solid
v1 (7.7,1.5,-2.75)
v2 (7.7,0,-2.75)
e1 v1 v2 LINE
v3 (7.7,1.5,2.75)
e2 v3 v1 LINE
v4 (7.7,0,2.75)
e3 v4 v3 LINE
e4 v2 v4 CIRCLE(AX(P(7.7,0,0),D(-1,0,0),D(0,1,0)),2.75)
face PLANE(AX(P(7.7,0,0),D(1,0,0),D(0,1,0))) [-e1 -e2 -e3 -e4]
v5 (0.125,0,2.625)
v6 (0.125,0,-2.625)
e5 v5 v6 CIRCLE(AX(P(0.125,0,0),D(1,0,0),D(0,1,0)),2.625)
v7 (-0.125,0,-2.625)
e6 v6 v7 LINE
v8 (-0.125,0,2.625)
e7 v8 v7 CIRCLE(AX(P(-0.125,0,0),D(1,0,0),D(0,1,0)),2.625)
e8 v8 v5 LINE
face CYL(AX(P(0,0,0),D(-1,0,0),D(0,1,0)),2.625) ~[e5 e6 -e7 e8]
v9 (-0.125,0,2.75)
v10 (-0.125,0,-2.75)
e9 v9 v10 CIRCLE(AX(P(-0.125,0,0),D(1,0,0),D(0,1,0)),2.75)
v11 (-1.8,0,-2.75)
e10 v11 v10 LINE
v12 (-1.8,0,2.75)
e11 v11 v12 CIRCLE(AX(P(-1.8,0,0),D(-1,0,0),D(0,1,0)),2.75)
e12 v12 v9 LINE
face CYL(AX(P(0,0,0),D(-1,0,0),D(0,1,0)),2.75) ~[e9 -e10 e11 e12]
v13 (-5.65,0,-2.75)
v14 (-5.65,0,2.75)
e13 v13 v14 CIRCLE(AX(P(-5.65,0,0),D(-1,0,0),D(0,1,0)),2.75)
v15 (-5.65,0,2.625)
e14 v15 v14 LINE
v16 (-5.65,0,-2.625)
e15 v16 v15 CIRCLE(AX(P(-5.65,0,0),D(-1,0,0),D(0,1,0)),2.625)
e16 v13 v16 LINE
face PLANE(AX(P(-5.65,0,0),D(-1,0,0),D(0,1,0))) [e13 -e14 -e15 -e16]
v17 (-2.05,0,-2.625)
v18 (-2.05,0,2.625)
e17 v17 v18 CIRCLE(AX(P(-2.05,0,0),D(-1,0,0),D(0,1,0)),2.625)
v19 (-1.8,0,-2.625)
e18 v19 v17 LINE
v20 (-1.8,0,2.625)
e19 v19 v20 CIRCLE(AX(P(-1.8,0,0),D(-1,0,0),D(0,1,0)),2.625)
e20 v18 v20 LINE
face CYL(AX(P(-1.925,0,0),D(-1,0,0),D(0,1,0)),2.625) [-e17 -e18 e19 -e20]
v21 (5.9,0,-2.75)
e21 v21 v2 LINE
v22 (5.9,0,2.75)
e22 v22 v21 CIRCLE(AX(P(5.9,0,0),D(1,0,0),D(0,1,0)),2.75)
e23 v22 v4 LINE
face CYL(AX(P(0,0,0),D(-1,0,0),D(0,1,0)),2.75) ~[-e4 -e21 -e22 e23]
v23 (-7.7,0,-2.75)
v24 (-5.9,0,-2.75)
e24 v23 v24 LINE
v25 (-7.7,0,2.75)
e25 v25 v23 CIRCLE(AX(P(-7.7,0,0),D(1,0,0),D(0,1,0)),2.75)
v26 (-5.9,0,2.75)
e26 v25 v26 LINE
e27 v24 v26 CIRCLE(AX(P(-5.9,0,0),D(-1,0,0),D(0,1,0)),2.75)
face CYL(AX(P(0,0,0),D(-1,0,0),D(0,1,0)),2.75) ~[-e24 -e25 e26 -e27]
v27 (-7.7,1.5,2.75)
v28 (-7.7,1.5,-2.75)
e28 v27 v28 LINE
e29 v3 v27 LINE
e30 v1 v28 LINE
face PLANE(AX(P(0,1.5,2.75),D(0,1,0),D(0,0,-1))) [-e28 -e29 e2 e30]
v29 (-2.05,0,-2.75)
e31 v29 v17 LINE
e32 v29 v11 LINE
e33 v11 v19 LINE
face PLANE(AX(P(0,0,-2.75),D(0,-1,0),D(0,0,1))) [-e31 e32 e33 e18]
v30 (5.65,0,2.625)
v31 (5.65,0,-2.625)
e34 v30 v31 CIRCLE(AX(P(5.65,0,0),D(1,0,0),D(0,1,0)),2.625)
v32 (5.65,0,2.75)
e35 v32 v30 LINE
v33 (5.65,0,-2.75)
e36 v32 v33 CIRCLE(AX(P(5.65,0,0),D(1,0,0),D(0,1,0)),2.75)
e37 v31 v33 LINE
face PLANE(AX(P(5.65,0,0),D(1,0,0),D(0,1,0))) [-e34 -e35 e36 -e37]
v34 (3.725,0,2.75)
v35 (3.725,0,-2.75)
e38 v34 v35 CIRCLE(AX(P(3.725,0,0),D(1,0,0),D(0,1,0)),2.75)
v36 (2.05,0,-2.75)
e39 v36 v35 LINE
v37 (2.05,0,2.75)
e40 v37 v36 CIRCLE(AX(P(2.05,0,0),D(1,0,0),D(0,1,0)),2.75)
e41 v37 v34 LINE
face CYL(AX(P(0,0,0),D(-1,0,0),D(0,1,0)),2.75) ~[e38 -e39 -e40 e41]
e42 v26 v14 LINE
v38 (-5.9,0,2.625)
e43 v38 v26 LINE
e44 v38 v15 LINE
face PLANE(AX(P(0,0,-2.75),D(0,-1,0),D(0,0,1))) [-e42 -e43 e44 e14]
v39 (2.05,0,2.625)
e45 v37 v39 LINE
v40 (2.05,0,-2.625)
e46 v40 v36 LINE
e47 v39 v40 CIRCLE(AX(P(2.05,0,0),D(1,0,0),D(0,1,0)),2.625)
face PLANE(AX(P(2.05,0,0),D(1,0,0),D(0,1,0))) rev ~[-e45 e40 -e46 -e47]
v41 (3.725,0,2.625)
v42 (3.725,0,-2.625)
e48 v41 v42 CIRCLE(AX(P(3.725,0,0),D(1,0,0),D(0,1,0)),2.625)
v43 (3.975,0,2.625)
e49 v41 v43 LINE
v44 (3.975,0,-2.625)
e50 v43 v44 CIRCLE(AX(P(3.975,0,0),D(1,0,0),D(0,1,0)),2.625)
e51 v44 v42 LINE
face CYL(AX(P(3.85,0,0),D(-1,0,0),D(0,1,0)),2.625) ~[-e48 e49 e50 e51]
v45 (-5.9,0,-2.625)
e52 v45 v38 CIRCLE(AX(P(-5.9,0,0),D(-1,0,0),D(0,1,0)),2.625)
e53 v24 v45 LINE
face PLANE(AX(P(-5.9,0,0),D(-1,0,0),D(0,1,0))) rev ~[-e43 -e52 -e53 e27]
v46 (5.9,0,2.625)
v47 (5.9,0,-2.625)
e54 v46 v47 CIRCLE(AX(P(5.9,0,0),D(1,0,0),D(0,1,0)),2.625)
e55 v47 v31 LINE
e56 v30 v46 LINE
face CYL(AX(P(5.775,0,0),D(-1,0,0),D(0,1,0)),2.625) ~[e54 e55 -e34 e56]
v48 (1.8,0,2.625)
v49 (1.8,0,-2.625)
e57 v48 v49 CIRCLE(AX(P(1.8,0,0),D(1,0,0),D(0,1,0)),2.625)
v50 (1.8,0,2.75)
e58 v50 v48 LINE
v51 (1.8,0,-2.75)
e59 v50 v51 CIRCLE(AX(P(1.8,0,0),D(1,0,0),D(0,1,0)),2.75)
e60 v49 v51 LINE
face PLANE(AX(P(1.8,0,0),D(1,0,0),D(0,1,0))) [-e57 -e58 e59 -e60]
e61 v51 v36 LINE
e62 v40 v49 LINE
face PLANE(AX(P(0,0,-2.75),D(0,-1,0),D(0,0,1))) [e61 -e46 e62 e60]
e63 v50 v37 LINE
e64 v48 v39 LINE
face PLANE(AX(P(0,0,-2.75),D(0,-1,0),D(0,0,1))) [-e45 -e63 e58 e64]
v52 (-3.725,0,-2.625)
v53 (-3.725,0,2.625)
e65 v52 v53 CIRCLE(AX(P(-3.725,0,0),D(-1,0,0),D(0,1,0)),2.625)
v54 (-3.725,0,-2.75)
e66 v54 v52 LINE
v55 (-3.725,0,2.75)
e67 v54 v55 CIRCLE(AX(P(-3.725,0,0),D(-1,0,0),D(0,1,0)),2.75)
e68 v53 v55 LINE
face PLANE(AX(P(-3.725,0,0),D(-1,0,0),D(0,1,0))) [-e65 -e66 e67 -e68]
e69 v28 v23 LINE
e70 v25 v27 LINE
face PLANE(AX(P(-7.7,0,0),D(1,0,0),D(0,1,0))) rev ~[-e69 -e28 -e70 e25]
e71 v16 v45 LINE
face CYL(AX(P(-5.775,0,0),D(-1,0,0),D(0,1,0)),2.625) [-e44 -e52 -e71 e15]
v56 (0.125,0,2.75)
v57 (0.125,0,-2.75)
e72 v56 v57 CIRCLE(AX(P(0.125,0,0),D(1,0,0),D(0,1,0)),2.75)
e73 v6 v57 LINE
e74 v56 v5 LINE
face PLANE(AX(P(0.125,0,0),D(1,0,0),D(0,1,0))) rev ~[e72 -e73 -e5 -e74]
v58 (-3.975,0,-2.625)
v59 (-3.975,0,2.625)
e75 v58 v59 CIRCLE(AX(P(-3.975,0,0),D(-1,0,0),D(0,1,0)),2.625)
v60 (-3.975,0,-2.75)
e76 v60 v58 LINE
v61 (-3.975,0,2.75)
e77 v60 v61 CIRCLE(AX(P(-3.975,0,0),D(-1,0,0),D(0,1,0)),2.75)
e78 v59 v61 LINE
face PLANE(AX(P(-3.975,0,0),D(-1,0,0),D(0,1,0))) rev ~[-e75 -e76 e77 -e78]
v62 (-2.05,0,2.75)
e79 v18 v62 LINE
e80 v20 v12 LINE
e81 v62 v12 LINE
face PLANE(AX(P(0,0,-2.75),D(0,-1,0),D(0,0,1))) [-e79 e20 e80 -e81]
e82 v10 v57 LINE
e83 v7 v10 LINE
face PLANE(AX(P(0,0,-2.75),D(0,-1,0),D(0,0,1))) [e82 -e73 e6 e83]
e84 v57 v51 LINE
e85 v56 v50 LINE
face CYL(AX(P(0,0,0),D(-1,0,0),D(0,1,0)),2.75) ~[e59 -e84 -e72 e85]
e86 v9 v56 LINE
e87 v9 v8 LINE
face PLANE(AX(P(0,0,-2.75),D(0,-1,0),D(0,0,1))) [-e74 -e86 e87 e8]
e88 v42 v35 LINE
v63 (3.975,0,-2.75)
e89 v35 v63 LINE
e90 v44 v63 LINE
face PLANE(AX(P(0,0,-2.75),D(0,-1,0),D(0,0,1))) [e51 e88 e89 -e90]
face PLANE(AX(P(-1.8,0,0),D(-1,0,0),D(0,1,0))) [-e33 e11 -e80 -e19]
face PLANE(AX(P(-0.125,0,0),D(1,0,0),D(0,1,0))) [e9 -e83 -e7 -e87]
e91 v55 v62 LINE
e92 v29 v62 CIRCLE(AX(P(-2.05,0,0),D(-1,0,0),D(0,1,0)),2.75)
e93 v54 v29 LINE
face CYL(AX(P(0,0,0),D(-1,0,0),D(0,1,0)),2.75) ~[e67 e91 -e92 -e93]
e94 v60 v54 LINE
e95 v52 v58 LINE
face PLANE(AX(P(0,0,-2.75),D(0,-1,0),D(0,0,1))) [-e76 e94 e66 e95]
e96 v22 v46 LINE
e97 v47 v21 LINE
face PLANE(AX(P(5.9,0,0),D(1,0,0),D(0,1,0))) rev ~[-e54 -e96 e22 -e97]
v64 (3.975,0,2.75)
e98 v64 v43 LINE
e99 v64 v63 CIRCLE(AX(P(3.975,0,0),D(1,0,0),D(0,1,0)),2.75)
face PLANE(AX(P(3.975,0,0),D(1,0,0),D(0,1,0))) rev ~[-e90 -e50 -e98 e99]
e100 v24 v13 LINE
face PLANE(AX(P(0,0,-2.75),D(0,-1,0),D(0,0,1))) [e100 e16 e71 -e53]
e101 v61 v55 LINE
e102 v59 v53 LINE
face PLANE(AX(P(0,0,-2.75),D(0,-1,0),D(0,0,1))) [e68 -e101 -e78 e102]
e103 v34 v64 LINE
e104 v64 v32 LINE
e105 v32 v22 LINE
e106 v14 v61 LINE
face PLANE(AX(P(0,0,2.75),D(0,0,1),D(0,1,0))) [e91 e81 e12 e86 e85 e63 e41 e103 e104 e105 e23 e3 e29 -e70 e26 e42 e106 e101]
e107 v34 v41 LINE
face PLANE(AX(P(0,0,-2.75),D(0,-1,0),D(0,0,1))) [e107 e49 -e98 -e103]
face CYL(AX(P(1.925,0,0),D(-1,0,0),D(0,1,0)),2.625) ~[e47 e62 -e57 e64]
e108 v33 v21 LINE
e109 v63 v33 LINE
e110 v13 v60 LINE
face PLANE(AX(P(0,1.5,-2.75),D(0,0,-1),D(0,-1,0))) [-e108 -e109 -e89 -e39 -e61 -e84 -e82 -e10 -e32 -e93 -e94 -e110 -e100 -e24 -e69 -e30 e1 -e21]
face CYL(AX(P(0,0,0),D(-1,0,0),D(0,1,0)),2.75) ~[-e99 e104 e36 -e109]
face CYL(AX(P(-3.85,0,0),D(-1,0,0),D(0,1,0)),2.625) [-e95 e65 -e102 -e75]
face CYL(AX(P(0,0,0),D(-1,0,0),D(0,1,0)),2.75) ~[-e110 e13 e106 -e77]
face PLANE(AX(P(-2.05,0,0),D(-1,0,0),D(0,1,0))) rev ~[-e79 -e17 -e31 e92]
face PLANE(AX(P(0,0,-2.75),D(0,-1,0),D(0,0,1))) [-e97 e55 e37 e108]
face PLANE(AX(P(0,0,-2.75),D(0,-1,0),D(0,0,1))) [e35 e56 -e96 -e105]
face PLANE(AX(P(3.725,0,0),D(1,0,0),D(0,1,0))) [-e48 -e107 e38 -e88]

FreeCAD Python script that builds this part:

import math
import FreeCAD as App
import Part
import Sketcher
from FreeCAD import Vector

doc = App.newDocument("Part")
body = doc.addObject("PartDesign::Body", "Body")

sketch1 = body.newObject("Sketcher::SketchObject", "Sketch")
sketch1.AttachmentSupport = (doc.getObject("YZ_Plane"), [""])
sketch1.MapMode = "FlatFace"
sketch1.addGeometry(Part.Circle(Vector(0, 0, 0), Vector(0, 0, 1), 2.75), False)
sketch1.addConstraint(Sketcher.Constraint("Coincident", 0, 3, -1, 1))
sketch1.addConstraint(Sketcher.Constraint("Diameter", 0, 5.5))
pad1 = body.newObject("PartDesign::Pad", "Pad")
pad1.Profile = sketch1
pad1.Length = 15.4
pad1.Midplane = True

sketch2 = body.newObject("Sketcher::SketchObject", "Sketch001")
sketch2.AttachmentSupport = (doc.getObject("YZ_Plane"), [""])
sketch2.MapMode = "FlatFace"
sketch2.addGeometry(Part.Circle(Vector(0, 0, 0), Vector(0, 0, 1), 2.75), False)
sketch2.addGeometry(Part.Circle(Vector(0, 0, 0), Vector(0, 0, 1), 2.625), False)
sketch2.addConstraint(Sketcher.Constraint("Coincident", 0, 3, -1, 1))
sketch2.addConstraint(Sketcher.Constraint("Coincident", 1, 3, -1, 1))
sketch2.addConstraint(Sketcher.Constraint("Diameter", 0, 5.5))
sketch2.addConstraint(Sketcher.Constraint("Diameter", 1, 5.25))
pocket1 = body.newObject("PartDesign::Pocket", "Pocket")
pocket1.Profile = sketch2
pocket1.Length = 0.25
pocket1.Midplane = True

sketch3 = body.newObject("Sketcher::SketchObject", "Sketch002")
sketch3.AttachmentSupport = (doc.getObject("YZ_Plane"), [""])
sketch3.MapMode = "FlatFace"
sketch3.AttachmentOffset = App.Placement(Vector(0, 0, -1.925), App.Rotation())
sketch3.addGeometry(Part.Circle(Vector(0, 0, 0), Vector(0, 0, 1), 2.75), False)
sketch3.addGeometry(Part.Circle(Vector(0, 0, 0), Vector(0, 0, 1), 2.625), False)
sketch3.addConstraint(Sketcher.Constraint("Coincident", 0, 3, -1, 1))
sketch3.addConstraint(Sketcher.Constraint("Coincident", 1, 3, -1, 1))
sketch3.addConstraint(Sketcher.Constraint("Diameter", 0, 5.5))
sketch3.addConstraint(Sketcher.Constraint("Diameter", 1, 5.25))
pocket2 = body.newObject("PartDesign::Pocket", "Pocket001")
pocket2.Profile = sketch3
pocket2.Length = 0.25
pocket2.Midplane = True

sketch4 = body.newObject("Sketcher::SketchObject", "Sketch003")
sketch4.AttachmentSupport = (doc.getObject("YZ_Plane"), [""])
sketch4.MapMode = "FlatFace"
sketch4.AttachmentOffset = App.Placement(Vector(0, 0, -3.85), App.Rotation())
sketch4.addGeometry(Part.Circle(Vector(0, 0, 0), Vector(0, 0, 1), 2.75), False)
sketch4.addGeometry(Part.Circle(Vector(0, 0, 0), Vector(0, 0, 1), 2.625), False)
sketch4.addConstraint(Sketcher.Constraint("Coincident", 0, 3, -1, 1))
sketch4.addConstraint(Sketcher.Constraint("Coincident", 1, 3, -1, 1))
sketch4.addConstraint(Sketcher.Constraint("Diameter", 0, 5.5))
sketch4.addConstraint(Sketcher.Constraint("Diameter", 1, 5.25))
pocket3 = body.newObject("PartDesign::Pocket", "Pocket002")
pocket3.Profile = sketch4
pocket3.Length = 0.25
pocket3.Midplane = True

sketch5 = body.newObject("Sketcher::SketchObject", "Sketch004")
sketch5.AttachmentSupport = (doc.getObject("YZ_Plane"), [""])
sketch5.MapMode = "FlatFace"
sketch5.AttachmentOffset = App.Placement(Vector(0, 0, -5.775), App.Rotation())
sketch5.addGeometry(Part.Circle(Vector(0, 0, 0), Vector(0, 0, 1), 2.75), False)
sketch5.addGeometry(Part.Circle(Vector(0, 0, 0), Vector(0, 0, 1), 2.625), False)
sketch5.addConstraint(Sketcher.Constraint("Coincident", 0, 3, -1, 1))
sketch5.addConstraint(Sketcher.Constraint("Coincident", 1, 3, -1, 1))
sketch5.addConstraint(Sketcher.Constraint("Diameter", 0, 5.5))
sketch5.addConstraint(Sketcher.Constraint("Diameter", 1, 5.25))
pocket4 = body.newObject("PartDesign::Pocket", "Pocket003")
pocket4.Profile = sketch5
pocket4.Length = 0.25
pocket4.Midplane = True

sketch6 = body.newObject("Sketcher::SketchObject", "Sketch005")
sketch6.AttachmentSupport = (doc.getObject("YZ_Plane"), [""])
sketch6.MapMode = "FlatFace"
sketch6.AttachmentOffset = App.Placement(Vector(0, 0, 1.925), App.Rotation())
sketch6.addGeometry(Part.Circle(Vector(0, 0, 0), Vector(0, 0, 1), 2.75), False)
sketch6.addGeometry(Part.Circle(Vector(0, 0, 0), Vector(0, 0, 1), 2.625), False)
sketch6.addConstraint(Sketcher.Constraint("Coincident", 0, 3, -1, 1))
sketch6.addConstraint(Sketcher.Constraint("Coincident", 1, 3, -1, 1))
sketch6.addConstraint(Sketcher.Constraint("Diameter", 0, 5.5))
sketch6.addConstraint(Sketcher.Constraint("Diameter", 1, 5.25))
pocket5 = body.newObject("PartDesign::Pocket", "Pocket004")
pocket5.Profile = sketch6
pocket5.Length = 0.25
pocket5.Midplane = True

sketch7 = body.newObject("Sketcher::SketchObject", "Sketch006")
sketch7.AttachmentSupport = (doc.getObject("YZ_Plane"), [""])
sketch7.MapMode = "FlatFace"
sketch7.AttachmentOffset = App.Placement(Vector(0, 0, 3.85), App.Rotation())
sketch7.addGeometry(Part.Circle(Vector(0, 0, 0), Vector(0, 0, 1), 2.75), False)
sketch7.addGeometry(Part.Circle(Vector(0, 0, 0), Vector(0, 0, 1), 2.625), False)
sketch7.addConstraint(Sketcher.Constraint("Coincident", 0, 3, -1, 1))
sketch7.addConstraint(Sketcher.Constraint("Coincident", 1, 3, -1, 1))
sketch7.addConstraint(Sketcher.Constraint("Diameter", 0, 5.5))
sketch7.addConstraint(Sketcher.Constraint("Diameter", 1, 5.25))
pocket6 = body.newObject("PartDesign::Pocket", "Pocket005")
pocket6.Profile = sketch7
pocket6.Length = 0.25
pocket6.Midplane = True

sketch8 = body.newObject("Sketcher::SketchObject", "Sketch007")
sketch8.AttachmentSupport = (doc.getObject("YZ_Plane"), [""])
sketch8.MapMode = "FlatFace"
sketch8.AttachmentOffset = App.Placement(Vector(0, 0, 5.775), App.Rotation())
sketch8.addGeometry(Part.Circle(Vector(0, 0, 0), Vector(0, 0, 1), 2.75), False)
sketch8.addGeometry(Part.Circle(Vector(0, 0, 0), Vector(0, 0, 1), 2.625), False)
sketch8.addConstraint(Sketcher.Constraint("Coincident", 0, 3, -1, 1))
sketch8.addConstraint(Sketcher.Constraint("Coincident", 1, 3, -1, 1))
sketch8.addConstraint(Sketcher.Constraint("Diameter", 0, 5.5))
sketch8.addConstraint(Sketcher.Constraint("Diameter", 1, 5.25))
pocket7 = body.newObject("PartDesign::Pocket", "Pocket006")
pocket7.Profile = sketch8
pocket7.Length = 0.25
pocket7.Midplane = True

sketch9 = body.newObject("Sketcher::SketchObject", "Sketch008")
sketch9.AttachmentSupport = (doc.getObject("YZ_Plane"), [""])
sketch9.MapMode = "FlatFace"
sketch9.addGeometry(Part.LineSegment(Vector(1.5, 2.75, 0), Vector(0, 2.75, 0)), False)
sketch9.addGeometry(Part.LineSegment(Vector(0, 2.75, 0), Vector(0, -2.75, 0)), False)
sketch9.addGeometry(Part.LineSegment(Vector(0, -2.75, 0), Vector(1.5, -2.75, 0)), False)
sketch9.addGeometry(Part.LineSegment(Vector(1.5, -2.75, 0), Vector(1.5, 2.75, 0)), False)
sketch9.addConstraint(Sketcher.Constraint("Coincident", 0, 2, 1, 1))
sketch9.addConstraint(Sketcher.Constraint("Coincident", 1, 2, 2, 1))
sketch9.addConstraint(Sketcher.Constraint("Coincident", 2, 2, 3, 1))
sketch9.addConstraint(Sketcher.Constraint("Coincident", 3, 2, 0, 1))
sketch9.addConstraint(Sketcher.Constraint("Horizontal", 0))
sketch9.addConstraint(Sketcher.Constraint("Vertical", 1))
sketch9.addConstraint(Sketcher.Constraint("Horizontal", 2))
sketch9.addConstraint(Sketcher.Constraint("Vertical", 3))
sketch9.addConstraint(Sketcher.Constraint("Symmetric", 0, 2, 1, 2, -1, 1))
sketch9.addConstraint(Sketcher.Constraint("DistanceX", 0, 2, 0, 1, 1.5))
sketch9.addConstraint(Sketcher.Constraint("DistanceY", 1, 2, 1, 1, 5.5))
pad2 = body.newObject("PartDesign::Pad", "Pad001")
pad2.Profile = sketch9
pad2.Length = 15.4
pad2.Midplane = True

sketch10 = body.newObject("Sketcher::SketchObject", "Sketch009")
sketch10.AttachmentSupport = (doc.getObject("YZ_Plane"), [""])
sketch10.MapMode = "FlatFace"
sketch10.addGeometry(Part.ArcOfCircle(Part.Circle(Vector(0, 0, 0), Vector(0, 0, 1), 2.75), math.radians(-56.944269), math.radians(56.944269)), False)
sketch10.addGeometry(Part.LineSegment(Vector(1.5, 2.304886, 0), Vector(1.5, -2.304886, 0)), False)
sketch10.addConstraint(Sketcher.Constraint("Coincident", 0, 1, 1, 2))
sketch10.addConstraint(Sketcher.Constraint("Coincident", 1, 1, 0, 2))
sketch10.addConstraint(Sketcher.Constraint("Vertical", 1))
sketch10.addConstraint(Sketcher.Constraint("Coincident", 0, 3, -1, 1))
sketch10.addConstraint(Sketcher.Constraint("Radius", 0, 2.75))
sketch10.addConstraint(Sketcher.Constraint("DistanceX", -1, 1, 0, 1, 1.5))
pocket8 = body.newObject("PartDesign::Pocket", "Pocket007")
pocket8.Profile = sketch10
pocket8.Length = 20
pocket8.Midplane = True

doc.recompute()
